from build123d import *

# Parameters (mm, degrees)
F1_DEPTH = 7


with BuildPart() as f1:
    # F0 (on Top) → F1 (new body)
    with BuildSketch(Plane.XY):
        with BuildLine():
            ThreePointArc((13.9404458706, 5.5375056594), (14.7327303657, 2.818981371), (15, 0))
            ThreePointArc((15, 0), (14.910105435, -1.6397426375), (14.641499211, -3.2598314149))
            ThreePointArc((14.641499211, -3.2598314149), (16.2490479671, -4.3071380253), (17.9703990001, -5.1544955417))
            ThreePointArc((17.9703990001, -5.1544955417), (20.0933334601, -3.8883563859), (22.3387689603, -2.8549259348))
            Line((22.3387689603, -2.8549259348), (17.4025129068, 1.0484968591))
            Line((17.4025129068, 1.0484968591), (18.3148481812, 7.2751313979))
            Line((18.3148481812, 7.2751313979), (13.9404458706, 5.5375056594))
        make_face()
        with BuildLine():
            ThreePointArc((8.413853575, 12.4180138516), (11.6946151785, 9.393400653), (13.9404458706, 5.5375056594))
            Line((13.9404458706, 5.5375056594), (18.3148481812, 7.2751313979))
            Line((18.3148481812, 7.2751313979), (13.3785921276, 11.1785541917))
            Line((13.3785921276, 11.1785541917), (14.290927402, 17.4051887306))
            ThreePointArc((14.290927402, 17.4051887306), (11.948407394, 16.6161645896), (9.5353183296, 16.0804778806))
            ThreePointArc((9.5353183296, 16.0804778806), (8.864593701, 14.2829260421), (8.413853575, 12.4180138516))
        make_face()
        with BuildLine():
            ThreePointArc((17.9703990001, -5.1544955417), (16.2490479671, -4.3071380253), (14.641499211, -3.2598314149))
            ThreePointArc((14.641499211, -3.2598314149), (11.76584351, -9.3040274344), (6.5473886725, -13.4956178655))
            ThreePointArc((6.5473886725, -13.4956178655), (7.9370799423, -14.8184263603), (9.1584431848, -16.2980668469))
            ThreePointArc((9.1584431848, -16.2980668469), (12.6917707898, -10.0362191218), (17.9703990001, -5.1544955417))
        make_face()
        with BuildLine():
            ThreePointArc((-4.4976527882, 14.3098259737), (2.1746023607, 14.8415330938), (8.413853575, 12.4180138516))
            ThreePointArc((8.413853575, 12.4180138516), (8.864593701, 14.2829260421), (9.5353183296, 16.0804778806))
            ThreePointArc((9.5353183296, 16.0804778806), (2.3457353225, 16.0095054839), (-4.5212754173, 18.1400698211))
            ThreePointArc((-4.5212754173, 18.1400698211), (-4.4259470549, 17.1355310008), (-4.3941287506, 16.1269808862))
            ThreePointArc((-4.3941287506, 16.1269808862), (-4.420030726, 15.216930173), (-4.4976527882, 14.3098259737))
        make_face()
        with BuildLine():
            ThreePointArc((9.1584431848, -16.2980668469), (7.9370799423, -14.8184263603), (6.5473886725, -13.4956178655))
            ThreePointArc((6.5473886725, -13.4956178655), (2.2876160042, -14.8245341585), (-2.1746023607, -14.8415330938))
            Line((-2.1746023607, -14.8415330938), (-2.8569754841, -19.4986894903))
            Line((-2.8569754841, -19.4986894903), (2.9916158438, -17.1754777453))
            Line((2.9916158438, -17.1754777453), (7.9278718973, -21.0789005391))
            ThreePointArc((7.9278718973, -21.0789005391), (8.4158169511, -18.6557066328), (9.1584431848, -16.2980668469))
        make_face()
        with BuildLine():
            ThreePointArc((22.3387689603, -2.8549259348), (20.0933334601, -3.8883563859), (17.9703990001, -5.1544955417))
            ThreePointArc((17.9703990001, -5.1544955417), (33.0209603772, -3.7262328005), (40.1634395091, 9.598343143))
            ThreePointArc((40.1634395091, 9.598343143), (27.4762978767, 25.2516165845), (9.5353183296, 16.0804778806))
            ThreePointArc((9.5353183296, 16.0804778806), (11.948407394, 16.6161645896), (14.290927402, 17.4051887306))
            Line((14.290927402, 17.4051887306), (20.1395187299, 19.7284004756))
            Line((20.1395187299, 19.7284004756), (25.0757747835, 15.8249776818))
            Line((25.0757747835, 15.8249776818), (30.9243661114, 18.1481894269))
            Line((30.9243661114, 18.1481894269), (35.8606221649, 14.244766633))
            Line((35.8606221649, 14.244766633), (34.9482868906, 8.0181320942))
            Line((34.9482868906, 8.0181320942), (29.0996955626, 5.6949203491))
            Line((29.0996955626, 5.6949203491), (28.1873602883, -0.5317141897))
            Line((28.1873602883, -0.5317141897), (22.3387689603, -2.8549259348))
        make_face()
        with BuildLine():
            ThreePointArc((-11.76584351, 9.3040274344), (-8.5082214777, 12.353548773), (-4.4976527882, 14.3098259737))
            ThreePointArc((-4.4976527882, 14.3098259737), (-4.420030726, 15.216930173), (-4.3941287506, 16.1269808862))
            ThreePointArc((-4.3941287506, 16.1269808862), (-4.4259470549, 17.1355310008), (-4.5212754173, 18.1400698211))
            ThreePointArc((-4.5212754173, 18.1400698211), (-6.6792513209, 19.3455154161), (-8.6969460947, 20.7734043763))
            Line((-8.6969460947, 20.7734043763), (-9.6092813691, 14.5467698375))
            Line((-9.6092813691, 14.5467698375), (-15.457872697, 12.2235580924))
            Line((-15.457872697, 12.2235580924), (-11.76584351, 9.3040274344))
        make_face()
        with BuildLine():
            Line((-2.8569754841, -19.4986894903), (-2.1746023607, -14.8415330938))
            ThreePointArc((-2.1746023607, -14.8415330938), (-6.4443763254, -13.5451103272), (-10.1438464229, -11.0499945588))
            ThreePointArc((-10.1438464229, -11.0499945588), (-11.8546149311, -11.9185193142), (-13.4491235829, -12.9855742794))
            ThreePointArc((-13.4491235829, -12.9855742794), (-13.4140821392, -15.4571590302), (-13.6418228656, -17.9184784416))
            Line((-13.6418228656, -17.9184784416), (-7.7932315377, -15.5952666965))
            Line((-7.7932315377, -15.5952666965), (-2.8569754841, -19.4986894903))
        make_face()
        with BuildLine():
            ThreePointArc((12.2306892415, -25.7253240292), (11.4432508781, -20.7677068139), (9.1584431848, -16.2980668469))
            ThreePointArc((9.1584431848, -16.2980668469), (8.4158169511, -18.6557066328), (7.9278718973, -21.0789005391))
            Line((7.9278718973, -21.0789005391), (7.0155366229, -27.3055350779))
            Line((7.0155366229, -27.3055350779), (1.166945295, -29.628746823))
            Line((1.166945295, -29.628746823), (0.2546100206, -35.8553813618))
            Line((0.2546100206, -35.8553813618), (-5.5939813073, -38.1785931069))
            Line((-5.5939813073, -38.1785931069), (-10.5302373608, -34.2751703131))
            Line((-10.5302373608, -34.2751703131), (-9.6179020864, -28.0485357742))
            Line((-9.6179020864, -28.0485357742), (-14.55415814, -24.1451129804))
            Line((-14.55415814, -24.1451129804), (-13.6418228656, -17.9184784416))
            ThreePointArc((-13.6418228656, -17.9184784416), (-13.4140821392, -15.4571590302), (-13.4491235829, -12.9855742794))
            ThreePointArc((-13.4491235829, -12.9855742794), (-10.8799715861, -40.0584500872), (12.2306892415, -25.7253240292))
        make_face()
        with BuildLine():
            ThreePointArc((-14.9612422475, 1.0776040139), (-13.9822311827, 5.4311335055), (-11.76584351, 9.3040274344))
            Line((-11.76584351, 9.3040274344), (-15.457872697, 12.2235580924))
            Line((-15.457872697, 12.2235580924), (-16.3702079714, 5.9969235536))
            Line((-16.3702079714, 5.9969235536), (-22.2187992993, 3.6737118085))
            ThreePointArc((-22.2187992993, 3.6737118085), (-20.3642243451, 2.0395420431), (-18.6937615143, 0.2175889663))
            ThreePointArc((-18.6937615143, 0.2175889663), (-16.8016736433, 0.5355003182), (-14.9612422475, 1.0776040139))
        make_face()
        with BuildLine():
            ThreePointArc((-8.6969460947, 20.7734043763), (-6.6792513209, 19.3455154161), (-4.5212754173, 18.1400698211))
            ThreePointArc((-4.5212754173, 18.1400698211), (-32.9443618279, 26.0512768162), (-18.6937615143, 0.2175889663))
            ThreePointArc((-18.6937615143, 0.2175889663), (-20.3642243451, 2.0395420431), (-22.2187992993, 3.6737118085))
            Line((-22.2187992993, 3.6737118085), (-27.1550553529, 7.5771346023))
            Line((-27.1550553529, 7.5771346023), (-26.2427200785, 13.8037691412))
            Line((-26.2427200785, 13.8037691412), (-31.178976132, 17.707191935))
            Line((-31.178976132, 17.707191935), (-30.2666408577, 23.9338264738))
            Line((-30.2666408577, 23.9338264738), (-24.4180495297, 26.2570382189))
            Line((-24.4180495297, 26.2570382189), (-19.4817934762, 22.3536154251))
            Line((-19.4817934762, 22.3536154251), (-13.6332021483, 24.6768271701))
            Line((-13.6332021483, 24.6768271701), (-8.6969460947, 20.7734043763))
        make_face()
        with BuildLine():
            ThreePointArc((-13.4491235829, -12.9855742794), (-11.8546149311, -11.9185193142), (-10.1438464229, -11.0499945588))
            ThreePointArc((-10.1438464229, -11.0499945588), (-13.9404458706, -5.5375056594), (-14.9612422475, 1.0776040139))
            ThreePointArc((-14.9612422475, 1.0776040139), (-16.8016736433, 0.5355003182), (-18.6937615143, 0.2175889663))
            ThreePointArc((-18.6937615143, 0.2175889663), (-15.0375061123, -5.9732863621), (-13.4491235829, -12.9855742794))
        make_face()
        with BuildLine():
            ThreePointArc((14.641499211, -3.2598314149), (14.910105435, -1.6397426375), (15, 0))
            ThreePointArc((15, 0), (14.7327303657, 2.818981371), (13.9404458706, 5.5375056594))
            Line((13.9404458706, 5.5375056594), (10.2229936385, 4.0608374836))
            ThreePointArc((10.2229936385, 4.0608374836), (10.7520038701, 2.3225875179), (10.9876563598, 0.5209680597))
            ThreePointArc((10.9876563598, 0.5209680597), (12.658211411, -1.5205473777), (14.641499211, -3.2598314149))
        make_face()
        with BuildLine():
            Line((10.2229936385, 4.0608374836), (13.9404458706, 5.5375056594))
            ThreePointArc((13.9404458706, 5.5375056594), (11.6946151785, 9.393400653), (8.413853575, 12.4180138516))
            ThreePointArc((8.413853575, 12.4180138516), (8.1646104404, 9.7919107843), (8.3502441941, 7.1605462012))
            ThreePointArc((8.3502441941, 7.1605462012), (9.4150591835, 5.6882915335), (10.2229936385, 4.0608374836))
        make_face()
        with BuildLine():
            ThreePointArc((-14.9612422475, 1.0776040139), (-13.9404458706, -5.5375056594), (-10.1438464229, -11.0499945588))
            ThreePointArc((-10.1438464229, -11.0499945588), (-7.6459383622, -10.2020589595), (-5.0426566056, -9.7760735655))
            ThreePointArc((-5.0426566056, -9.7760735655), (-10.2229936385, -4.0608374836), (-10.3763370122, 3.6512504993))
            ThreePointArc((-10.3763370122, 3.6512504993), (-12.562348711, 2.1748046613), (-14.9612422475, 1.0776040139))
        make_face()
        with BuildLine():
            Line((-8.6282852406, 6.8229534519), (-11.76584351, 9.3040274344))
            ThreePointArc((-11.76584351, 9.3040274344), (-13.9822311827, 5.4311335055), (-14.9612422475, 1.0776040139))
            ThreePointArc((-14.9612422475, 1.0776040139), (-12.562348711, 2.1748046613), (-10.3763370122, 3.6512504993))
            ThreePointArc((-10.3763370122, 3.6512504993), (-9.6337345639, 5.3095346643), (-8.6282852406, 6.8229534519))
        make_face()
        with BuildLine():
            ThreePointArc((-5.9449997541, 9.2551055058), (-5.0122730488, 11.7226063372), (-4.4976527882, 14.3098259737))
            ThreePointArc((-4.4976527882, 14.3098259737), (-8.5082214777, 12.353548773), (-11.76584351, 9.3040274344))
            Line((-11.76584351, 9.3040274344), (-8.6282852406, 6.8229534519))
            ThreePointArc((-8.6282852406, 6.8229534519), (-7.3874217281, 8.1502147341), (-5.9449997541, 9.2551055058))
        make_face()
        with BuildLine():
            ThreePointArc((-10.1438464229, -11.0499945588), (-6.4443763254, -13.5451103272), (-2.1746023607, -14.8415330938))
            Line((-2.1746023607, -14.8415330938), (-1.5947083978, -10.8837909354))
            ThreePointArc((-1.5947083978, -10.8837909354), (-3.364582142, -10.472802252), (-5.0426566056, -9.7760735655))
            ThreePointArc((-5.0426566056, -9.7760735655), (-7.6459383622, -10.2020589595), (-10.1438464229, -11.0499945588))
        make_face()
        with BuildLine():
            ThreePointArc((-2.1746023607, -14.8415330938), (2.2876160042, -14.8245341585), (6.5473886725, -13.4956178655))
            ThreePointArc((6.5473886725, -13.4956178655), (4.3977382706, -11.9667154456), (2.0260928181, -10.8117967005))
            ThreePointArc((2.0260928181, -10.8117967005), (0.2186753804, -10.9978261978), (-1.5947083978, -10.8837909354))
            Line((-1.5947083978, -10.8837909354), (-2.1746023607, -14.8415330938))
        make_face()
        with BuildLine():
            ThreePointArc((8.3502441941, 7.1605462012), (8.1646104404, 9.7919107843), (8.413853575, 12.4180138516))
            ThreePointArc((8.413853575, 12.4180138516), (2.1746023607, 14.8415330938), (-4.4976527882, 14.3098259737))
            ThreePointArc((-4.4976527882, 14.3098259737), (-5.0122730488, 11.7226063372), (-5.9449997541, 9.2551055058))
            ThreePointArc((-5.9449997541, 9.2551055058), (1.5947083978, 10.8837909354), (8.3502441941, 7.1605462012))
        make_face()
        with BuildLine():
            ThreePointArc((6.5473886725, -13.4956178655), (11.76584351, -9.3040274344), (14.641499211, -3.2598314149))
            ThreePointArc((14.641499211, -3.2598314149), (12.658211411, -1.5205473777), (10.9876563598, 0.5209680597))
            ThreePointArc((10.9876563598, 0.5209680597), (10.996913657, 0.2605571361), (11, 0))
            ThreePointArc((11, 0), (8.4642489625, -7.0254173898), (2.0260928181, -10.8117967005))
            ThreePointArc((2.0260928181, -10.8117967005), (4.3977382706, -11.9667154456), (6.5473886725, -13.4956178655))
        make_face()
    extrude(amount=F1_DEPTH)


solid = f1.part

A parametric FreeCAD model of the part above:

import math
import FreeCAD as App
import Part
import Sketcher

doc = App.newDocument("Part")
params = doc.addObject("Spreadsheet::Sheet", "Params")
for row, (alias, value) in enumerate([
    ("sketch1_radius", "16 mm"),
    ("sketch1_radius2", "11 mm"),
    ("pad1_length", "7 mm"),
], start=1):
    params.set(f"A{row}", alias)
    params.set(f"B{row}", "=" + value)
    params.setAlias(f"B{row}", alias)

body = doc.addObject("PartDesign::Body", "Body")

sketch1 = body.newObject("Sketcher::SketchObject", "Sketch")
sketch1.AttachmentSupport = (doc.getObject("XY_Plane"), [""])
sketch1.MapMode = "FlatFace"
sketch1.addGeometry([
    Part.ArcOfCircle(Part.Circle(App.Vector(-3.8, -25.7, 0), App.Vector(0, 0, 1), 16), math.radians(127), math.radians(360)),
    Part.ArcOfCircle(Part.Circle(App.Vector(-3.8, -25.7, 0), App.Vector(0, 0, 1), 16), math.radians(0), math.radians(36)),
    Part.ArcOfCircle(Part.Circle(App.Vector(30.9, -24.4, 0), App.Vector(0, 0, 1), 23.2), math.radians(124), math.radians(159)),
    Part.ArcOfCircle(Part.Circle(App.Vector(24.2, 9.6, 0), App.Vector(0, 0, 1), 16), math.radians(-113), math.radians(0)),
    Part.ArcOfCircle(Part.Circle(App.Vector(24.2, 9.6, 0), App.Vector(0, 0, 1), 16), math.radians(0), math.radians(156)),
    Part.ArcOfCircle(Part.Circle(App.Vector(5.7, 39, 0), App.Vector(0, 0, 1), 23.2), math.radians(-116), math.radians(-81)),
    Part.ArcOfCircle(Part.Circle(App.Vector(-20.4, 16.1, 0), App.Vector(0, 0, 1), 16), math.radians(7), math.radians(276)),
    Part.ArcOfCircle(Part.Circle(App.Vector(-36.6, -14.6, 0), App.Vector(0, 0, 1), 23.2), math.radians(4), math.radians(39)),
    Part.LineSegment(App.Vector(-13.6, -17.9, 0), App.Vector(-7.8, -15.6, 0)),
    Part.LineSegment(App.Vector(-7.8, -15.6, 0), App.Vector(-2.9, -19.5, 0)),
    Part.LineSegment(App.Vector(-2.9, -19.5, 0), App.Vector(3, -17.2, 0)),
    Part.LineSegment(App.Vector(3, -17.2, 0), App.Vector(7.9, -21.1, 0)),
    Part.LineSegment(App.Vector(7.9, -21.1, 0), App.Vector(7, -27.3, 0)),
    Part.LineSegment(App.Vector(7, -27.3, 0), App.Vector(1.2, -29.6, 0)),
    Part.LineSegment(App.Vector(1.2, -29.6, 0), App.Vector(0.3, -35.9, 0)),
    Part.LineSegment(App.Vector(0.3, -35.9, 0), App.Vector(-5.6, -38.2, 0)),
    Part.LineSegment(App.Vector(-5.6, -38.2, 0), App.Vector(-10.5, -34.3, 0)),
    Part.LineSegment(App.Vector(-10.5, -34.3, 0), App.Vector(-9.6, -28, 0)),
    Part.LineSegment(App.Vector(-9.6, -28, 0), App.Vector(-14.6, -24.1, 0)),
    Part.LineSegment(App.Vector(-14.6, -24.1, 0), App.Vector(-13.6, -17.9, 0)),
    Part.ArcOfCircle(Part.Circle(App.Vector(0, 0, 0), App.Vector(0, 0, 1), 11), math.radians(21.66), math.radians(40.61)),
    Part.ArcOfCircle(Part.Circle(App.Vector(0, 0, 0), App.Vector(0, 0, 1), 11), math.radians(2.71), math.radians(21.66)),
    Part.ArcOfCircle(Part.Circle(App.Vector(0, 0, 0), App.Vector(0, 0, 1), 11), math.radians(0), math.radians(2.71)),
    Part.ArcOfCircle(Part.Circle(App.Vector(0, 0, 0), App.Vector(0, 0, 1), 11), math.radians(-79), math.radians(0)),
    Part.ArcOfCircle(Part.Circle(App.Vector(0, 0, 0), App.Vector(0, 0, 1), 11), math.radians(-98.34), math.radians(-79.39)),
    Part.ArcOfCircle(Part.Circle(App.Vector(0, 0, 0), App.Vector(0, 0, 1), 11), math.radians(-117.29), math.radians(-98.34)),
    Part.ArcOfCircle(Part.Circle(App.Vector(0, 0, 0), App.Vector(0, 0, 1), 11), math.radians(161), math.radians(243)),
    Part.ArcOfCircle(Part.Circle(App.Vector(0, 0, 0), App.Vector(0, 0, 1), 11), math.radians(141.66), math.radians(160.61)),
    Part.ArcOfCircle(Part.Circle(App.Vector(0, 0, 0), App.Vector(0, 0, 1), 11), math.radians(122.71), math.radians(141.66)),
    Part.ArcOfCircle(Part.Circle(App.Vector(0, 0, 0), App.Vector(0, 0, 1), 11), math.radians(41), math.radians(123)),
    Part.LineSegment(App.Vector(-8.7, 20.8, 0), App.Vector(-9.6, 14.5, 0)),
    Part.LineSegment(App.Vector(-9.6, 14.5, 0), App.Vector(-15.5, 12.2, 0)),
    Part.LineSegment(App.Vector(-15.5, 12.2, 0), App.Vector(-16.4, 6, 0)),
    Part.LineSegment(App.Vector(-16.4, 6, 0), App.Vector(-22.2, 3.7, 0)),
    Part.LineSegment(App.Vector(-22.2, 3.7, 0), App.Vector(-27.2, 7.6, 0)),
    Part.LineSegment(App.Vector(-27.2, 7.6, 0), App.Vector(-26.2, 13.8, 0)),
    Part.LineSegment(App.Vector(-26.2, 13.8, 0), App.Vector(-31.2, 17.7, 0)),
    Part.LineSegment(App.Vector(-31.2, 17.7, 0), App.Vector(-30.3, 23.9, 0)),
    Part.LineSegment(App.Vector(-30.3, 23.9, 0), App.Vector(-24.4, 26.3, 0)),
    Part.LineSegment(App.Vector(-24.4, 26.3, 0), App.Vector(-19.5, 22.4, 0)),
    Part.LineSegment(App.Vector(-19.5, 22.4, 0), App.Vector(-13.6, 24.7, 0)),
    Part.LineSegment(App.Vector(-13.6, 24.7, 0), App.Vector(-8.7, 20.8, 0)),
    Part.LineSegment(App.Vector(22.3, -2.9, 0), App.Vector(17.4, 1, 0)),
    Part.LineSegment(App.Vector(17.4, 1, 0), App.Vector(18.3, 7.3, 0)),
    Part.LineSegment(App.Vector(18.3, 7.3, 0), App.Vector(13.4, 11.2, 0)),
    Part.LineSegment(App.Vector(13.4, 11.2, 0), App.Vector(14.3, 17.4, 0)),
    Part.LineSegment(App.Vector(14.3, 17.4, 0), App.Vector(20.1, 19.7, 0)),
    Part.LineSegment(App.Vector(20.1, 19.7, 0), App.Vector(25.1, 15.8, 0)),
    Part.LineSegment(App.Vector(25.1, 15.8, 0), App.Vector(30.9, 18.1, 0)),
    Part.LineSegment(App.Vector(30.9, 18.1, 0), App.Vector(35.9, 14.2, 0)),
    Part.LineSegment(App.Vector(35.9, 14.2, 0), App.Vector(34.9, 8, 0)),
    Part.LineSegment(App.Vector(34.9, 8, 0), App.Vector(29.1, 5.7, 0)),
    Part.LineSegment(App.Vector(29.1, 5.7, 0), App.Vector(28.2, -0.5, 0)),
    Part.LineSegment(App.Vector(28.2, -0.5, 0), App.Vector(22.3, -2.9, 0)),
], False)
sketch1.addConstraint([
    Sketcher.Constraint("Tangent", 0, 2, 1, 1),
    Sketcher.Constraint("Coincident", 1, 2, 2, 2),
    Sketcher.Constraint("Coincident", 2, 1, 3, 1),
    Sketcher.Constraint("Tangent", 3, 2, 4, 1),
    Sketcher.Constraint("Coincident", 4, 2, 5, 2),
    Sketcher.Constraint("Coincident", 5, 1, 6, 1),
    Sketcher.Constraint("Coincident", 6, 2, 7, 2),
    Sketcher.Constraint("Coincident", 7, 1, 0, 1),
    Sketcher.Constraint("Coincident", 8, 2, 9, 1),
    Sketcher.Constraint("Coincident", 9, 2, 10, 1),
    Sketcher.Constraint("Coincident", 10, 2, 11, 1),
    Sketcher.Constraint("Coincident", 11, 2, 12, 1),
    Sketcher.Constraint("Coincident", 12, 2, 13, 1),
    Sketcher.Constraint("Coincident", 13, 2, 14, 1),
    Sketcher.Constraint("Coincident", 14, 2, 15, 1),
    Sketcher.Constraint("Coincident", 15, 2, 16, 1),
    Sketcher.Constraint("Coincident", 16, 2, 17, 1),
    Sketcher.Constraint("Coincident", 17, 2, 18, 1),
    Sketcher.Constraint("Coincident", 18, 2, 19, 1),
    Sketcher.Constraint("Coincident", 19, 2, 8, 1),
    Sketcher.Constraint("Tangent", 20, 1, 21, 2),
    Sketcher.Constraint("Tangent", 21, 1, 22, 2),
    Sketcher.Constraint("Tangent", 22, 1, 23, 2),
    Sketcher.Constraint("Tangent", 23, 1, 24, 2),
    Sketcher.Constraint("Tangent", 24, 1, 25, 2),
    Sketcher.Constraint("Tangent", 25, 1, 26, 2),
    Sketcher.Constraint("Tangent", 26, 1, 27, 2),
    Sketcher.Constraint("Tangent", 27, 1, 28, 2),
    Sketcher.Constraint("Tangent", 28, 1, 29, 2),
    Sketcher.Constraint("Tangent", 29, 1, 20, 2),
    Sketcher.Constraint("Coincident", 30, 2, 31, 1),
    Sketcher.Constraint("Coincident", 31, 2, 32, 1),
    Sketcher.Constraint("Coincident", 32, 2, 33, 1),
    Sketcher.Constraint("Coincident", 33, 2, 34, 1),
    Sketcher.Constraint("Coincident", 34, 2, 35, 1),
    Sketcher.Constraint("Coincident", 35, 2, 36, 1),
    Sketcher.Constraint("Coincident", 36, 2, 37, 1),
    Sketcher.Constraint("Coincident", 37, 2, 38, 1),
    Sketcher.Constraint("Coincident", 38, 2, 39, 1),
    Sketcher.Constraint("Coincident", 39, 2, 40, 1),
    Sketcher.Constraint("Coincident", 40, 2, 41, 1),
    Sketcher.Constraint("Coincident", 41, 2, 30, 1),
    Sketcher.Constraint("Coincident", 42, 2, 43, 1),
    Sketcher.Constraint("Coincident", 43, 2, 44, 1),
    Sketcher.Constraint("Coincident", 44, 2, 45, 1),
    Sketcher.Constraint("Coincident", 45, 2, 46, 1),
    Sketcher.Constraint("Coincident", 46, 2, 47, 1),
    Sketcher.Constraint("Coincident", 47, 2, 48, 1),
    Sketcher.Constraint("Coincident", 48, 2, 49, 1),
    Sketcher.Constraint("Coincident", 49, 2, 50, 1),
    Sketcher.Constraint("Coincident", 50, 2, 51, 1),
    Sketcher.Constraint("Coincident", 51, 2, 52, 1),
    Sketcher.Constraint("Coincident", 52, 2, 53, 1),
    Sketcher.Constraint("Coincident", 53, 2, 42, 1),
    Sketcher.Constraint("Coincident", 20, 3, -1, 1),
    Sketcher.Constraint("Coincident", 22, 3, -1, 1),
    Sketcher.Constraint("Coincident", 24, 3, -1, 1),
    Sketcher.Constraint("Coincident", 26, 3, -1, 1),
    Sketcher.Constraint("Equal", 0, 1),
    Sketcher.Constraint("Equal", 1, 3),
    Sketcher.Constraint("Equal", 3, 4),
    Sketcher.Constraint("Equal", 2, 5),
    Sketcher.Constraint("Equal", 4, 6),
    Sketcher.Constraint("Equal", 5, 7),
    Sketcher.Constraint("Equal", 26, 27),
    Sketcher.Constraint("PointOnObject", 22, 1, -1),
    Sketcher.Constraint("Parallel", 8, 10),
    Sketcher.Constraint("Parallel", 9, 11),
    Sketcher.Constraint("Parallel", 10, 13),
    Sketcher.Constraint("Parallel", 12, 14),
    Sketcher.Constraint("Parallel", 13, 15),
    Sketcher.Constraint("Parallel", 11, 16),
    Sketcher.Constraint("Parallel", 14, 17),
    Sketcher.Constraint("Parallel", 16, 18),
    Sketcher.Constraint("Parallel", 17, 19),
    Sketcher.Constraint("Parallel", 19, 30),
    Sketcher.Constraint("Parallel", 15, 31),
    Sketcher.Constraint("Parallel", 30, 32),
    Sketcher.Constraint("Parallel", 31, 33),
    Sketcher.Constraint("Parallel", 18, 34),
    Sketcher.Constraint("Parallel", 32, 35),
    Sketcher.Constraint("Parallel", 34, 36),
    Sketcher.Constraint("Parallel", 35, 37),
    Sketcher.Constraint("Parallel", 33, 38),
    Sketcher.Constraint("Parallel", 36, 39),
    Sketcher.Constraint("Parallel", 38, 40),
    Sketcher.Constraint("Parallel", 39, 41),
    Sketcher.Constraint("Parallel", 41, 42),
    Sketcher.Constraint("Parallel", 37, 43),
    Sketcher.Constraint("Parallel", 42, 44),
    Sketcher.Constraint("Parallel", 43, 45),
    Sketcher.Constraint("Parallel", 40, 46),
    Sketcher.Constraint("Parallel", 44, 47),
    Sketcher.Constraint("Parallel", 46, 48),
    Sketcher.Constraint("Parallel", 47, 49),
    Sketcher.Constraint("Parallel", 45, 50),
    Sketcher.Constraint("Parallel", 48, 51),
    Sketcher.Constraint("Parallel", 50, 52),
    Sketcher.Constraint("Parallel", 51, 53),
    Sketcher.Constraint("Horizontal", 1, 3, 0, 2),
    Sketcher.Constraint("Horizontal", 4, 3, 3, 2),
    Sketcher.Constraint("Equal", 8, 9),
    Sketcher.Constraint("Equal", 9, 10),
    Sketcher.Constraint("Equal", 10, 11),
    Sketcher.Constraint("Equal", 11, 12),
    Sketcher.Constraint("Equal", 12, 13),
    Sketcher.Constraint("Equal", 13, 14),
    Sketcher.Constraint("Equal", 14, 15),
    Sketcher.Constraint("Equal", 15, 16),
    Sketcher.Constraint("Equal", 16, 17),
    Sketcher.Constraint("Equal", 19, 30),
    Sketcher.Constraint("Equal", 30, 31),
    Sketcher.Constraint("Equal", 31, 32),
    Sketcher.Constraint("Equal", 32, 33),
    Sketcher.Constraint("Equal", 33, 34),
    Sketcher.Constraint("Equal", 34, 35),
    Sketcher.Constraint("Equal", 35, 36),
    Sketcher.Constraint("Equal", 36, 37),
    Sketcher.Constraint("Equal", 37, 38),
    Sketcher.Constraint("Equal", 38, 39),
    Sketcher.Constraint("Equal", 41, 42),
    Sketcher.Constraint("Equal", 42, 43),
    Sketcher.Constraint("Equal", 43, 44),
    Sketcher.Constraint("Equal", 44, 45),
    Sketcher.Constraint("Equal", 45, 46),
    Sketcher.Constraint("Equal", 46, 47),
    Sketcher.Constraint("Equal", 47, 48),
    Sketcher.Constraint("Equal", 48, 49),
    Sketcher.Constraint("Equal", 49, 50),
    Sketcher.Constraint("Equal", 50, 51),
    Sketcher.Constraint("Radius", 0, 16.0),
    Sketcher.Constraint("Radius", 20, 11.0),
    Sketcher.Constraint("Radius", 2, 23.233321),
    Sketcher.Constraint("DistanceX", 28, 1, -1, 1, 5.945),
    Sketcher.Constraint("DistanceX", -1, 1, 2, 1, 17.970399),
    Sketcher.Constraint("DistanceY", 11, 2, -1, 1, 21.078901),
    Sketcher.Constraint("DistanceX", 33, 2, -1, 1, 22.218799),
    Sketcher.Constraint("DistanceY", -1, 1, 46, 2, 19.7284),
    Sketcher.Constraint("DistanceX", 0, 3, -1, 1, 3.769311),
    Sketcher.Constraint("DistanceX", -1, 1, 3, 3, 24.16344),
    Sketcher.Constraint("DistanceX", -1, 1, 5, 3, 5.713951),
    Sketcher.Constraint("DistanceY", -1, 1, 5, 3, 38.997379),
    Sketcher.Constraint("DistanceX", 6, 3, -1, 1, 20.394129),
    Sketcher.Constraint("DistanceY", -1, 1, 6, 3, 16.126981),
    Sketcher.Constraint("DistanceX", -1, 1, 4, 2, 9.535318),
    Sketcher.Constraint("DistanceX", 6, 2, -1, 1, 18.693762),
    Sketcher.Constraint("DistanceX", 8, 2, -1, 1, 7.793232),
    Sketcher.Constraint("DistanceY", 9, 2, -1, 1, 19.498689),
    Sketcher.Constraint("DistanceX", -1, 1, 11, 2, 7.927872),
    Sketcher.Constraint("DistanceX", -1, 1, 14, 2, 0.25461),
    Sketcher.Constraint("DistanceY", 14, 2, -1, 1, 35.855381),
    Sketcher.Constraint("DistanceY", -1, 1, 21, 1, 0.520968),
    Sketcher.Constraint("DistanceX", 24, 1, -1, 1, 1.594708),
    Sketcher.Constraint("DistanceY", -1, 1, 26, 1, 3.65125),
    Sketcher.Constraint("DistanceY", -1, 1, 30, 2, 14.54677),
    Sketcher.Constraint("DistanceX", -1, 1, 43, 2, 18.314848),
    Sketcher.Constraint("DistanceY", 0, 3, -1, 1, 25.725324),
    Sketcher.Constraint("DistanceX", -1, 1, 2, 3, 30.915745),
    Sketcher.Constraint("DistanceX", 7, 3, -1, 1, 36.629696),
    Sketcher.Constraint("DistanceX", -1, 1, 20, 1, 10.222994),
    Sketcher.Constraint("DistanceX", -1, 1, 23, 1, 2.026093),
    Sketcher.Constraint("DistanceX", 25, 1, -1, 1, 5.042657),
    Sketcher.Constraint("DistanceX", 27, 1, -1, 1, 8.628285),
    Sketcher.Constraint("DistanceX", -1, 1, 29, 1, 8.350244),
])
sketch1.setExpression("Constraints[130]", "Params.sketch1_radius")
sketch1.setExpression("Constraints[131]", "Params.sketch1_radius2")
pad1 = body.newObject("PartDesign::Pad", "Pad")
pad1.Profile = sketch1
pad1.setExpression("Length", "Params.pad1_length")

doc.recompute()
